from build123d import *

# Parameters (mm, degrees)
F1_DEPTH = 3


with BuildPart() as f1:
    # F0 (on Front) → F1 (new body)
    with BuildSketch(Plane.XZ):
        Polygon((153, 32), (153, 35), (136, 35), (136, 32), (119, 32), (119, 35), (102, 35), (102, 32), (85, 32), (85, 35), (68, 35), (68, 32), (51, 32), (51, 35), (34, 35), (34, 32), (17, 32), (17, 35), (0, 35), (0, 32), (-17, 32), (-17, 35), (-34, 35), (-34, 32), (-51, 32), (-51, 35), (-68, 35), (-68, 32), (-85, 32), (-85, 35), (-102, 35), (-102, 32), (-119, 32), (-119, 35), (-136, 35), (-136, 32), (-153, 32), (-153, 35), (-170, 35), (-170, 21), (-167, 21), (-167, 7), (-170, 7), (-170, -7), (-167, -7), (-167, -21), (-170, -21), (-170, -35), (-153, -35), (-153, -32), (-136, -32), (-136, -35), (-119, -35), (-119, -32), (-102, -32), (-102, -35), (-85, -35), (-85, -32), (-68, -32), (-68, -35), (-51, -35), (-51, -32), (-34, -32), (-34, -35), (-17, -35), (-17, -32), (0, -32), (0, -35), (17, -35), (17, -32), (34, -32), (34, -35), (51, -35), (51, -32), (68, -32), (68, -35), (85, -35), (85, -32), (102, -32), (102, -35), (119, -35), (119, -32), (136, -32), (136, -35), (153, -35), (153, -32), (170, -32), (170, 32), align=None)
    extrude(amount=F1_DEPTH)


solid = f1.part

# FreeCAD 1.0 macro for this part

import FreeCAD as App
import Part
import Sketcher
Q = App.Units.Quantity


def add_polygon(sketch, points):
    """Adds a closed chain of lines whose ends are joined by coincident constraints."""
    first, n = sketch.GeometryCount, len(points)
    for a, b in zip(points, points[1:] + points[:1]):
        sketch.addGeometry(Part.LineSegment(App.Vector(*a, 0), App.Vector(*b, 0)), False)
    for i in range(n):
        sketch.addConstraint(Sketcher.Constraint("Coincident", first + i, 2, first + (i + 1) % n, 1))

doc = App.newDocument("Part")
body = doc.addObject("PartDesign::Body", "Body")

sketch1 = body.newObject("Sketcher::SketchObject", "Sketch")
sketch1.AttachmentSupport = (doc.getObject("XZ_Plane"), [""])
sketch1.MapMode = "FlatFace"
add_polygon(sketch1, [(153, 32), (153, 35), (136, 35), (136, 32), (119, 32), (119, 35), (102, 35), (102, 32), (85, 32), (85, 35), (68, 35), (68, 32), (51, 32), (51, 35), (34, 35), (34, 32), (17, 32), (17, 35), (0, 35), (0, 32), (-17, 32), (-17, 35), (-34, 35), (-34, 32), (-51, 32), (-51, 35), (-68, 35), (-68, 32), (-85, 32), (-85, 35), (-102, 35), (-102, 32), (-119, 32), (-119, 35), (-136, 35), (-136, 32), (-153, 32), (-153, 35), (-170, 35), (-170, 21), (-167, 21), (-167, 7), (-170, 7), (-170, -7), (-167, -7), (-167, -21), (-170, -21), (-170, -35), (-153, -35), (-153, -32), (-136, -32), (-136, -35), (-119, -35), (-119, -32), (-102, -32), (-102, -35), (-85, -35), (-85, -32), (-68, -32), (-68, -35), (-51, -35), (-51, -32), (-34, -32), (-34, -35), (-17, -35), (-17, -32), (0, -32), (0, -35), (17, -35), (17, -32), (34, -32), (34, -35), (51, -35), (51, -32), (68, -32), (68, -35), (85, -35), (85, -32), (102, -32), (102, -35), (119, -35), (119, -32), (136, -32), (136, -35), (153, -35), (153, -32), (170, -32), (170, 32)])
sketch1.addConstraint([
    Sketcher.Constraint("Vertical", 0),
    Sketcher.Constraint("Horizontal", 1),
    Sketcher.Constraint("Vertical", 2),
    Sketcher.Constraint("Horizontal", 3),
    Sketcher.Constraint("Vertical", 4),
    Sketcher.Constraint("Horizontal", 5),
    Sketcher.Constraint("Vertical", 6),
    Sketcher.Constraint("Horizontal", 7),
    Sketcher.Constraint("Vertical", 8),
    Sketcher.Constraint("Horizontal", 9),
    Sketcher.Constraint("Vertical", 10),
    Sketcher.Constraint("Horizontal", 11),
    Sketcher.Constraint("Vertical", 12),
    Sketcher.Constraint("Horizontal", 13),
    Sketcher.Constraint("Vertical", 14),
    Sketcher.Constraint("Horizontal", 15),
    Sketcher.Constraint("Vertical", 16),
    Sketcher.Constraint("Horizontal", 17),
    Sketcher.Constraint("Vertical", 18),
    Sketcher.Constraint("Horizontal", 19),
    Sketcher.Constraint("Vertical", 20),
    Sketcher.Constraint("Horizontal", 21),
    Sketcher.Constraint("Vertical", 22),
    Sketcher.Constraint("Horizontal", 23),
    Sketcher.Constraint("Vertical", 24),
    Sketcher.Constraint("Horizontal", 25),
    Sketcher.Constraint("Vertical", 26),
    Sketcher.Constraint("Horizontal", 27),
    Sketcher.Constraint("Vertical", 28),
    Sketcher.Constraint("Horizontal", 29),
    Sketcher.Constraint("Vertical", 30),
    Sketcher.Constraint("Horizontal", 31),
    Sketcher.Constraint("Vertical", 32),
    Sketcher.Constraint("Horizontal", 33),
    Sketcher.Constraint("Vertical", 34),
    Sketcher.Constraint("Horizontal", 35),
    Sketcher.Constraint("Vertical", 36),
    Sketcher.Constraint("Horizontal", 37),
    Sketcher.Constraint("Vertical", 38),
    Sketcher.Constraint("Horizontal", 39),
    Sketcher.Constraint("Vertical", 40),
    Sketcher.Constraint("Horizontal", 41),
    Sketcher.Constraint("Vertical", 42),
    Sketcher.Constraint("Horizontal", 43),
    Sketcher.Constraint("Vertical", 44),
    Sketcher.Constraint("Horizontal", 45),
    Sketcher.Constraint("Vertical", 46),
    Sketcher.Constraint("Horizontal", 47),
    Sketcher.Constraint("Vertical", 48),
    Sketcher.Constraint("Horizontal", 49),
    Sketcher.Constraint("Vertical", 50),
    Sketcher.Constraint("Horizontal", 51),
    Sketcher.Constraint("Vertical", 52),
    Sketcher.Constraint("Horizontal", 53),
    Sketcher.Constraint("Vertical", 54),
    Sketcher.Constraint("Horizontal", 55),
    Sketcher.Constraint("Vertical", 56),
    Sketcher.Constraint("Horizontal", 57),
    Sketcher.Constraint("Vertical", 58),
    Sketcher.Constraint("Horizontal", 59),
    Sketcher.Constraint("Vertical", 60),
    Sketcher.Constraint("Horizontal", 61),
    Sketcher.Constraint("Vertical", 62),
    Sketcher.Constraint("Horizontal", 63),
    Sketcher.Constraint("Vertical", 64),
    Sketcher.Constraint("Horizontal", 65),
    Sketcher.Constraint("Vertical", 66),
    Sketcher.Constraint("Horizontal", 67),
    Sketcher.Constraint("Vertical", 68),
    Sketcher.Constraint("Horizontal", 69),
    Sketcher.Constraint("Vertical", 70),
    Sketcher.Constraint("Horizontal", 71),
    Sketcher.Constraint("Vertical", 72),
    Sketcher.Constraint("Horizontal", 73),
    Sketcher.Constraint("Vertical", 74),
    Sketcher.Constraint("Horizontal", 75),
    Sketcher.Constraint("Vertical", 76),
    Sketcher.Constraint("Horizontal", 77),
    Sketcher.Constraint("Vertical", 78),
    Sketcher.Constraint("Horizontal", 79),
    Sketcher.Constraint("Vertical", 80),
    Sketcher.Constraint("Horizontal", 81),
    Sketcher.Constraint("Vertical", 82),
    Sketcher.Constraint("Horizontal", 83),
    Sketcher.Constraint("Vertical", 84),
    Sketcher.Constraint("Horizontal", 85),
    Sketcher.Constraint("Vertical", 86),
    Sketcher.Constraint("Horizontal", 87),
    Sketcher.Constraint("Symmetric", 0, 2, 47, 2, -1, 1),
    Sketcher.Constraint("Symmetric", 2, 2, 49, 2, -1, 1),
    Sketcher.Constraint("Symmetric", 4, 2, 51, 2, -1, 1),
    Sketcher.Constraint("Symmetric", 6, 2, 53, 2, -1, 1),
    Sketcher.Constraint("Symmetric", 8, 2, 55, 2, -1, 1),
    Sketcher.Constraint("Symmetric", 10, 2, 57, 2, -1, 1),
    Sketcher.Constraint("Symmetric", 12, 2, 59, 2, -1, 1),
    Sketcher.Constraint("Symmetric", 14, 2, 61, 2, -1, 1),
    Sketcher.Constraint("Symmetric", 16, 2, 63, 2, -1, 1),
    Sketcher.Constraint("Symmetric", 18, 2, 65, 2, -1, 1),
    Sketcher.Constraint("Symmetric", 20, 2, 67, 2, -1, 1),
    Sketcher.Constraint("Symmetric", 22, 2, 69, 2, -1, 1),
    Sketcher.Constraint("Symmetric", 24, 2, 71, 2, -1, 1),
    Sketcher.Constraint("Symmetric", 26, 2, 73, 2, -1, 1),
    Sketcher.Constraint("Symmetric", 28, 2, 75, 2, -1, 1),
    Sketcher.Constraint("Symmetric", 30, 2, 77, 2, -1, 1),
    Sketcher.Constraint("Symmetric", 32, 2, 79, 2, -1, 1),
    Sketcher.Constraint("Symmetric", 34, 2, 81, 2, -1, 1),
    Sketcher.Constraint("Symmetric", 36, 2, 83, 2, -1, 1),
    Sketcher.Constraint("Symmetric", 15, 2, 19, 2, -2),
    Sketcher.Constraint("Symmetric", 13, 2, 21, 2, -2),
    Sketcher.Constraint("Symmetric", 11, 2, 23, 2, -2),
    Sketcher.Constraint("Symmetric", 9, 2, 25, 2, -2),
    Sketcher.Constraint("Symmetric", 7, 2, 27, 2, -2),
    Sketcher.Constraint("Symmetric", 5, 2, 29, 2, -2),
    Sketcher.Constraint("Symmetric", 3, 2, 31, 2, -2),
    Sketcher.Constraint("Symmetric", 1, 2, 33, 2, -2),
    Sketcher.Constraint("Symmetric", 0, 2, 36, 2, -2),
    Sketcher.Constraint("Symmetric", 40, 2, 43, 2, -1),
    Sketcher.Constraint("Symmetric", 38, 2, 45, 2, -1),
    Sketcher.Constraint("Symmetric", 17, 2, 66, 2, -1),
    Sketcher.Constraint("Horizontal", 1, 2, 4, 2),
    Sketcher.Constraint("Horizontal", 3, 2, 6, 2),
    Sketcher.Constraint("Horizontal", 5, 2, 8, 2),
    Sketcher.Constraint("Horizontal", 7, 2, 10, 2),
    Sketcher.Constraint("Horizontal", 9, 2, 12, 2),
    Sketcher.Constraint("Horizontal", 11, 2, 14, 2),
    Sketcher.Constraint("Horizontal", 31, 2, 34, 2),
    Sketcher.Constraint("Horizontal", 81, 2, 84, 2),
    Sketcher.Constraint("Horizontal", 35, 2, 86, 2),
    Sketcher.Constraint("Vertical", 38, 2, 41, 2),
    Sketcher.Constraint("Equal", 1, 3),
    Sketcher.Constraint("Equal", 3, 5),
    Sketcher.Constraint("Equal", 5, 7),
    Sketcher.Constraint("Equal", 7, 9),
    Sketcher.Constraint("Equal", 9, 11),
    Sketcher.Constraint("Equal", 11, 13),
    Sketcher.Constraint("Equal", 13, 15),
    Sketcher.Constraint("Equal", 15, 17),
    Sketcher.Constraint("Equal", 35, 37),
    Sketcher.Constraint("Equal", 83, 85),
    Sketcher.Constraint("Equal", 45, 0),
    Sketcher.Constraint("Equal", 38, 40),
    Sketcher.Constraint("Equal", 40, 42),
    Sketcher.Constraint("DistanceX", 1, 2, 1, 1, Q("17 mm")),
    Sketcher.Constraint("DistanceX", 39, 1, 39, 2, Q("3 mm")),
    Sketcher.Constraint("DistanceY", 38, 2, 38, 1, Q("14 mm")),
])
pad1 = body.newObject("PartDesign::Pad", "Pad")
pad1.Profile = sketch1
pad1.Length = 3

doc.recompute()
